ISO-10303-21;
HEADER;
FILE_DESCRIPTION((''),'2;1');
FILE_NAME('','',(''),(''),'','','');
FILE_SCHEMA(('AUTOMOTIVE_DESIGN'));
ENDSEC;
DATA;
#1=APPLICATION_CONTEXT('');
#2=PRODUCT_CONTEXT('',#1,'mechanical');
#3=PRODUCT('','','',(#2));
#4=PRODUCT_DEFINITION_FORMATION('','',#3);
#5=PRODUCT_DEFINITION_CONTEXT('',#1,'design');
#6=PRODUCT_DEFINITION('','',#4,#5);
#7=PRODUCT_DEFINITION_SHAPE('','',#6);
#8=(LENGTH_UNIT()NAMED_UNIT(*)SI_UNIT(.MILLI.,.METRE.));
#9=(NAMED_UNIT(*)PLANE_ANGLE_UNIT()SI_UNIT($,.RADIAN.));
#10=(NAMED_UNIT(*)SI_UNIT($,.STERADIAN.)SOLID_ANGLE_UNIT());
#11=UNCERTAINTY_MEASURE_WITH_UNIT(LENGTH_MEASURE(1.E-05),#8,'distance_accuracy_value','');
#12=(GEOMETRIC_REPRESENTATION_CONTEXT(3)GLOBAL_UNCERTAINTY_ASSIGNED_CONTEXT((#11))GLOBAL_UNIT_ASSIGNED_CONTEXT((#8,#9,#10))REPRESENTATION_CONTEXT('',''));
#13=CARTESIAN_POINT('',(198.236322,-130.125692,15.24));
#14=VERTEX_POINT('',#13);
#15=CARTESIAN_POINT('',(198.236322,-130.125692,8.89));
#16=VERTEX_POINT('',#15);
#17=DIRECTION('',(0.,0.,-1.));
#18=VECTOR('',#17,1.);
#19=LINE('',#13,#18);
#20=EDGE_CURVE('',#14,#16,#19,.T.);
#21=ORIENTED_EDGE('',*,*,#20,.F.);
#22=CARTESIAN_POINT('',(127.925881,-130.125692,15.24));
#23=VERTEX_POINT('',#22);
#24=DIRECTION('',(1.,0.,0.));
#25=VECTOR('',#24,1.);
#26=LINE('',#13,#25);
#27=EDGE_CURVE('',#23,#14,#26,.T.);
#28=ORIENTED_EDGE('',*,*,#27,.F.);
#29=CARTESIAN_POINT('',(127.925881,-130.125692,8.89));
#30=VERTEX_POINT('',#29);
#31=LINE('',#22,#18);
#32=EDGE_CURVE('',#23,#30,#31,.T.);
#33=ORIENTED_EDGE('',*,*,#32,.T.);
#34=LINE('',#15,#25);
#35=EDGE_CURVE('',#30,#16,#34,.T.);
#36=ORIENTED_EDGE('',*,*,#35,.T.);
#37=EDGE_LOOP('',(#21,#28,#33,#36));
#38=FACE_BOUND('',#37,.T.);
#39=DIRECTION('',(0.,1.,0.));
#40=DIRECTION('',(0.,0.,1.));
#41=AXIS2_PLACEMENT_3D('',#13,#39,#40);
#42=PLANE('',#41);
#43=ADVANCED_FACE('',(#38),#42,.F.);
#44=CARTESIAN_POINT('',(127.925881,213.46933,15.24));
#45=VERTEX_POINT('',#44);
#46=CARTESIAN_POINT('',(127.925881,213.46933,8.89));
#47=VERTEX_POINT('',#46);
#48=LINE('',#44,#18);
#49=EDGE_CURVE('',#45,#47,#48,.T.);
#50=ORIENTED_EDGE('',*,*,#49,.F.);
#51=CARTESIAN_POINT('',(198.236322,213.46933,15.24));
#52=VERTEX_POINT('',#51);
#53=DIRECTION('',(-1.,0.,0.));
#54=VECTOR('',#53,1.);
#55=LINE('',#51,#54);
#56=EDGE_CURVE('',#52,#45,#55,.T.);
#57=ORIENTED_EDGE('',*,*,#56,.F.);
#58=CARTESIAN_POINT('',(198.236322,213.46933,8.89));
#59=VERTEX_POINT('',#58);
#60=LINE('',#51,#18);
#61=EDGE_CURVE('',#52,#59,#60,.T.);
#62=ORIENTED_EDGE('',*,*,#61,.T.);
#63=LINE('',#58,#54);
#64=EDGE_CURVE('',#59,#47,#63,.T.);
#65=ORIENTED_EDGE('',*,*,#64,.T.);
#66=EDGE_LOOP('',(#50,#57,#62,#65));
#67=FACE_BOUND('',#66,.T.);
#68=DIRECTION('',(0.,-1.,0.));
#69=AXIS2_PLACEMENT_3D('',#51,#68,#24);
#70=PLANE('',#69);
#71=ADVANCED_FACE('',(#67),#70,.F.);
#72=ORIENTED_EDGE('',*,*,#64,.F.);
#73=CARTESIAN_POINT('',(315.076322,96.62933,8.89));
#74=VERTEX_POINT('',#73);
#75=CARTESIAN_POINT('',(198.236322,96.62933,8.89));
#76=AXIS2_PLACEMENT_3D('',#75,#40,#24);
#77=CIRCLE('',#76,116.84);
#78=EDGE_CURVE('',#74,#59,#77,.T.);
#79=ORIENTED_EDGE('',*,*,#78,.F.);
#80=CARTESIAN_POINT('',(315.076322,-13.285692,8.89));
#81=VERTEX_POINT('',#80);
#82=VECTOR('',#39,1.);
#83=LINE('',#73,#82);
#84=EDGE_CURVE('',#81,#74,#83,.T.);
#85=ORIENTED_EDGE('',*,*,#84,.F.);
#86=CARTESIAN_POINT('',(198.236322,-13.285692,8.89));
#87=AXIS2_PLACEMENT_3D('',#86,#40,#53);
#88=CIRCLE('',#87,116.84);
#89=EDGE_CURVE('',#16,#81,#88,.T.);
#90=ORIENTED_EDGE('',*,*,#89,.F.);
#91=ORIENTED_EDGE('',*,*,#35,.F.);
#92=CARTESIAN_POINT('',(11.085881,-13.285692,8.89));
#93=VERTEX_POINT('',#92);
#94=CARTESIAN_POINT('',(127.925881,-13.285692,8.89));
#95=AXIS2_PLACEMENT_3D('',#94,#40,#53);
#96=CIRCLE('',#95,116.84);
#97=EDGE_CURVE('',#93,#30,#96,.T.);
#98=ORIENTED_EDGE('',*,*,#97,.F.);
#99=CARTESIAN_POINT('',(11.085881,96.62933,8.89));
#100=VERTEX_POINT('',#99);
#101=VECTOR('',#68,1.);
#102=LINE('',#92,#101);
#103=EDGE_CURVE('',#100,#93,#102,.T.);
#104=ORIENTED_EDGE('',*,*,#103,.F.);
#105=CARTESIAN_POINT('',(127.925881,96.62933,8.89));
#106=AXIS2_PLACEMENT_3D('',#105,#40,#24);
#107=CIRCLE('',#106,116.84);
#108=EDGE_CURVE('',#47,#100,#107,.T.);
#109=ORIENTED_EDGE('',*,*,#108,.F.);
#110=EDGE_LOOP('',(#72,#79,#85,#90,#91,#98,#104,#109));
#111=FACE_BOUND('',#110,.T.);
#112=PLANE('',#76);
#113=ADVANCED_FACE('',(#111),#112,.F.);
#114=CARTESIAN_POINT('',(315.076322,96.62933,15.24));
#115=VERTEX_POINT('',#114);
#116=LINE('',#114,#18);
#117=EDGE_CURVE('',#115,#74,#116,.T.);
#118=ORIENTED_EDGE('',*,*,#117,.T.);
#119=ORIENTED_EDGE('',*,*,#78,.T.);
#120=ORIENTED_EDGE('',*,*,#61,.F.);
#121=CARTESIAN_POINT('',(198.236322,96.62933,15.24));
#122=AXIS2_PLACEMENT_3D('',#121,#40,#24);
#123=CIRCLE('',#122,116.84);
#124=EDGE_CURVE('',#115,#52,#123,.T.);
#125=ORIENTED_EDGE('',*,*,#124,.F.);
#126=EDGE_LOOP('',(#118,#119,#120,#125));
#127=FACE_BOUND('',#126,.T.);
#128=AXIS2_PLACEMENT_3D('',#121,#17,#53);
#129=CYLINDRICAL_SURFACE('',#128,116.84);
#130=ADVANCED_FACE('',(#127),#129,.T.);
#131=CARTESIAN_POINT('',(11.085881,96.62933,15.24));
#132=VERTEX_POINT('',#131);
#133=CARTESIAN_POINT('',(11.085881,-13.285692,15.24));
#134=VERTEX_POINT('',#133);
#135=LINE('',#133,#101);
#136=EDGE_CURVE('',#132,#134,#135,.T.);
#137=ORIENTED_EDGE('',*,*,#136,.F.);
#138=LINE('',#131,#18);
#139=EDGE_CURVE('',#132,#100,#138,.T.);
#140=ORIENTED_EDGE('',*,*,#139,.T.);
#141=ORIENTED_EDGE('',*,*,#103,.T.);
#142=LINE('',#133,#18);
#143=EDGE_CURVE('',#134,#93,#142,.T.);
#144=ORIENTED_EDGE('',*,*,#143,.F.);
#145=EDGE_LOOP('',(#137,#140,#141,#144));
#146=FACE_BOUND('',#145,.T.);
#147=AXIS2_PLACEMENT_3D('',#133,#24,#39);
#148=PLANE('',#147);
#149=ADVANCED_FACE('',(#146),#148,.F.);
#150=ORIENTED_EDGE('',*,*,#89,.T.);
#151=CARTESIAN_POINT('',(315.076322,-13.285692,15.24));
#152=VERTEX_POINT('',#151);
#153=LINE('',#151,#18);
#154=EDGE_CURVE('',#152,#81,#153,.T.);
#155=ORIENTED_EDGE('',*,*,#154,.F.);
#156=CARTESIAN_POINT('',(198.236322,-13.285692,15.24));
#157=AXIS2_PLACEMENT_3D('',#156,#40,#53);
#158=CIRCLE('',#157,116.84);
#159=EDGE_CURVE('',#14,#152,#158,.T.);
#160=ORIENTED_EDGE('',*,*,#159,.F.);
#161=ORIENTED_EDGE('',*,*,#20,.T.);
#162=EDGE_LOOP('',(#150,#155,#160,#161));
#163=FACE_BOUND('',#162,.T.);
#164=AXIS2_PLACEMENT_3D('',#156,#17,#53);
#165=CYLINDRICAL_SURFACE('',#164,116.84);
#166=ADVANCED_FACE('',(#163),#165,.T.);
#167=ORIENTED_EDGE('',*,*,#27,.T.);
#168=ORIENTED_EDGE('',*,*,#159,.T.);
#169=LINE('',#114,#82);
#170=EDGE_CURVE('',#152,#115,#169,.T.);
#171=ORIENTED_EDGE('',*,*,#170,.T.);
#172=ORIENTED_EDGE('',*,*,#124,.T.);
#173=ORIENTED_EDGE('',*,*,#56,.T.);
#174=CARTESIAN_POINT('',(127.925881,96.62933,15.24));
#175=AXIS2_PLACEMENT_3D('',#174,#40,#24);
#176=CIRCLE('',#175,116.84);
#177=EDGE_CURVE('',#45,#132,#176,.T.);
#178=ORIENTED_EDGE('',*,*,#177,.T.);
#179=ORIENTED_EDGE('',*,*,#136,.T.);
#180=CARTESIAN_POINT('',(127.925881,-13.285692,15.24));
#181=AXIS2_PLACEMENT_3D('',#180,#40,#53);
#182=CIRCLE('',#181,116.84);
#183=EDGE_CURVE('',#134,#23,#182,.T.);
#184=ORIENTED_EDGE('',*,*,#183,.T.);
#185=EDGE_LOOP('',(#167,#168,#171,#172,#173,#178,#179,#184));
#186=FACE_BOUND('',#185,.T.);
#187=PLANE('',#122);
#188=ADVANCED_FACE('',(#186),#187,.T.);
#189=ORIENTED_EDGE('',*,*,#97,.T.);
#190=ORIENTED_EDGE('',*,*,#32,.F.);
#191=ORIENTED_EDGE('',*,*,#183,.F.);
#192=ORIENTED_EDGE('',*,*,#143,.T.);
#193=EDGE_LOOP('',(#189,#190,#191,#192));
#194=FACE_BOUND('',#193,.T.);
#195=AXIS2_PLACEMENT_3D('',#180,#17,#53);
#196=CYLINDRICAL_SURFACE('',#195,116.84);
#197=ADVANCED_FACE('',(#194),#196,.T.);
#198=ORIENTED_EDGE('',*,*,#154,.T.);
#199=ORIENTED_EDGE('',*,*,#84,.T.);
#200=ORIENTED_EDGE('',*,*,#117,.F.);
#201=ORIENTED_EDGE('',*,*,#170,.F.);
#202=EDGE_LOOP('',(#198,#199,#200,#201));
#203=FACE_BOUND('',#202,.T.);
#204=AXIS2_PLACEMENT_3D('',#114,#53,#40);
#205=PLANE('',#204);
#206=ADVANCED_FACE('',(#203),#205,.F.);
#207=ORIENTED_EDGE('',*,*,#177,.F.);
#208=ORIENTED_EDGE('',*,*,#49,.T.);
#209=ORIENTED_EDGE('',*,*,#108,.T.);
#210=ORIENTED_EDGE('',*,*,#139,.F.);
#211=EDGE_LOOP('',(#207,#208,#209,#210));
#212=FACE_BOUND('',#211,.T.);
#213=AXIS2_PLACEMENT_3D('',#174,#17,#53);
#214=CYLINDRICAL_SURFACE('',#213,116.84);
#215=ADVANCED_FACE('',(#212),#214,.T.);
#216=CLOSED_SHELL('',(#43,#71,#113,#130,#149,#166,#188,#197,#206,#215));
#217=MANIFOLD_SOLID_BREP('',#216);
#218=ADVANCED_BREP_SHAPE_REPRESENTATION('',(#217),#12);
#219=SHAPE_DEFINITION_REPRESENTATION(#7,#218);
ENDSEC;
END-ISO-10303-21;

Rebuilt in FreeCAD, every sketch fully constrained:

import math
import FreeCAD as App
import Part
import Sketcher

V = App.Vector
Q = App.Units.Quantity

doc = App.newDocument("Part")
params = doc.addObject("Spreadsheet::Sheet", "Params")
for row, (alias, value) in enumerate([
    ("sketch1_radius", "4.6 in"),
    ("pad1_length", "0.25 in"),
], start=1):
    params.set(f"A{row}", alias)
    params.set(f"B{row}", "=" + value)
    params.setAlias(f"B{row}", alias)

body = doc.addObject("PartDesign::Body", "Body")

# Sketch on XY plane
sketch1 = body.newObject("Sketcher::SketchObject", "Sketch")
sketch1.AttachmentSupport = (doc.getObject("XY_Plane"), [""])
sketch1.MapMode = "FlatFace"
sketch1.AttachmentOffset = App.Placement(V(0, 0, 0.35 * 25.4), App.Rotation())
sketch1.addGeometry([
    Part.LineSegment(V(198, 213, 0), V(128, 213, 0)),  # 0
    Part.ArcOfCircle(Part.Circle(V(128, 97, 0), V(0, 0, 1), 117), math.radians(90), math.radians(180)),  # 1
    Part.LineSegment(V(11, 97, 0), V(11, -13, 0)),  # 2
    Part.ArcOfCircle(Part.Circle(V(128, -13, 0), V(0, 0, 1), 117), math.radians(180), math.radians(270)),  # 3
    Part.LineSegment(V(128, -130, 0), V(198, -130, 0)),  # 4
    Part.ArcOfCircle(Part.Circle(V(198, -13, 0), V(0, 0, 1), 117), math.radians(-90), math.radians(0)),  # 5
    Part.LineSegment(V(315, -13, 0), V(315, 97, 0)),  # 6
    Part.ArcOfCircle(Part.Circle(V(198, 97, 0), V(0, 0, 1), 117), math.radians(0), math.radians(90)),  # 7
], False)
sketch1.addConstraint([
    Sketcher.Constraint("Tangent", 0, 2, 1, 1),
    Sketcher.Constraint("Tangent", 1, 2, 2, 1),
    Sketcher.Constraint("Tangent", 2, 2, 3, 1),
    Sketcher.Constraint("Tangent", 3, 2, 4, 1),
    Sketcher.Constraint("Tangent", 4, 2, 5, 1),
    Sketcher.Constraint("Tangent", 5, 2, 6, 1),
    Sketcher.Constraint("Tangent", 6, 2, 7, 1),
    Sketcher.Constraint("Tangent", 7, 2, 0, 1),
    Sketcher.Constraint("Horizontal", 0),
    Sketcher.Constraint("Vertical", 2),
    Sketcher.Constraint("Horizontal", 4),
    Sketcher.Constraint("Vertical", 6),
    Sketcher.Constraint("Equal", 1, 3),
    Sketcher.Constraint("Equal", 3, 5),
    Sketcher.Constraint("Equal", 5, 7),
    Sketcher.Constraint("Radius", 1, Q("4.6 in")),
    Sketcher.Constraint("DistanceX", 0, 2, 0, 1, Q("70.310441 mm")),
    Sketcher.Constraint("DistanceY", 2, 2, 2, 1, Q("109.915023 mm")),
    Sketcher.Constraint("DistanceX", -1, 1, 1, 3, Q("127.925881 mm")),
    Sketcher.Constraint("DistanceY", -1, 1, 1, 3, Q("96.62933 mm")),
])
sketch1.setExpression("Constraints[15]", "Params.sketch1_radius")
pad1 = body.newObject("PartDesign::Pad", "Pad")
pad1.Profile = sketch1
pad1.setExpression("Length", "Params.pad1_length")

doc.recompute()
